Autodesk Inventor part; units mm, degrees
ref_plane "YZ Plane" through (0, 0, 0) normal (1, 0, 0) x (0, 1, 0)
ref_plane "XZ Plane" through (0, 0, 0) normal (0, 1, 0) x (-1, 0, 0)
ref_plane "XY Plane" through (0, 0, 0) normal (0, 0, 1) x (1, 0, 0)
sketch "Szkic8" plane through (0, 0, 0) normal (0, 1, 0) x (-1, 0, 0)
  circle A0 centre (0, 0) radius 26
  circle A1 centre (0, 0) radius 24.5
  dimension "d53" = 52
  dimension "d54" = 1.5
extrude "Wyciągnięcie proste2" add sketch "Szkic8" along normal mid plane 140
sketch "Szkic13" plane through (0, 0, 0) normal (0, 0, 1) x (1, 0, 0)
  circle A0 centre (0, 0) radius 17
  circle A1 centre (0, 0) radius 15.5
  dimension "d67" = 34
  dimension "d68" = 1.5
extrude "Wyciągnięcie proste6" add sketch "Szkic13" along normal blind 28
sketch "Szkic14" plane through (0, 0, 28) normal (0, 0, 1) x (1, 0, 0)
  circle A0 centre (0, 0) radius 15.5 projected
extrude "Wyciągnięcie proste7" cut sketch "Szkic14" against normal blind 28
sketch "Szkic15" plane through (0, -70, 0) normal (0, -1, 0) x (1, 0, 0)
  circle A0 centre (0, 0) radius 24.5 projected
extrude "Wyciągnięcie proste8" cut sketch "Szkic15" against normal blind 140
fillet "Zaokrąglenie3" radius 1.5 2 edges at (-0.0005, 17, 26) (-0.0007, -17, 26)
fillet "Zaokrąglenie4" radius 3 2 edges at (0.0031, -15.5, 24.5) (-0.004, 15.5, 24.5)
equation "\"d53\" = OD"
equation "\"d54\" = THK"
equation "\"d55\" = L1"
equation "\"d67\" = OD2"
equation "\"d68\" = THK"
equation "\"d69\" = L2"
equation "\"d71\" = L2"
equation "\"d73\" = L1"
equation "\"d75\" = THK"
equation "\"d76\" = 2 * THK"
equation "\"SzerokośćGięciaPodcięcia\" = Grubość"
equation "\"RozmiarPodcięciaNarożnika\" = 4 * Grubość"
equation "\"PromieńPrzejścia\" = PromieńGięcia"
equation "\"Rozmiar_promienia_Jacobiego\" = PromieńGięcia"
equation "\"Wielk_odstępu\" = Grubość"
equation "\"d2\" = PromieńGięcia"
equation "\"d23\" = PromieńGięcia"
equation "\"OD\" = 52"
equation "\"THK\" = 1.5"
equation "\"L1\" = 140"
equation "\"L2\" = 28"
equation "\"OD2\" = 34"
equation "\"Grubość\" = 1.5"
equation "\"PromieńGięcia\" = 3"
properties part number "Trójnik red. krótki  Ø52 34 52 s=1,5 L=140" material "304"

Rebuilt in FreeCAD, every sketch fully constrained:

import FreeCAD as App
import Part
import Sketcher

V = App.Vector
Q = App.Units.Quantity


def edges_at(feature, points):
    """Names of the edges that pass closest to the given points."""
    edges = feature.Shape.Edges
    near = lambda p: min(range(len(edges)), key=lambda i: edges[i].distToShape(Part.Vertex(*p))[0])
    return sorted({f"Edge{near(p) + 1}" for p in points})

doc = App.newDocument("Part")
body = doc.addObject("PartDesign::Body", "Body")

sketch1 = body.newObject("Sketcher::SketchObject", "Sketch")
sketch1.AttachmentSupport = (doc.getObject("XZ_Plane"), [""])
sketch1.MapMode = "FlatFace"
sketch1.addGeometry([
    Part.Circle(V(0, 0, 0), V(0, 0, 1), 26),
    Part.Circle(V(0, 0, 0), V(0, 0, 1), 24.5),
], False)
sketch1.addConstraint([
    Sketcher.Constraint("Coincident", 0, 3, -1, 1),
    Sketcher.Constraint("Coincident", 1, 3, -1, 1),
    Sketcher.Constraint("Diameter", 0, Q("52 mm")),
    Sketcher.Constraint("Diameter", 1, Q("49 mm")),
])
pad1 = body.newObject("PartDesign::Pad", "Pad")
pad1.Profile = sketch1
pad1.Length = 140
pad1.Midplane = True

sketch2 = body.newObject("Sketcher::SketchObject", "Sketch001")
sketch2.AttachmentSupport = (doc.getObject("XY_Plane"), [""])
sketch2.MapMode = "FlatFace"
sketch2.addGeometry([
    Part.Circle(V(0, 0, 0), V(0, 0, 1), 17),
    Part.Circle(V(0, 0, 0), V(0, 0, 1), 15.5),
], False)
sketch2.addConstraint([
    Sketcher.Constraint("Coincident", 0, 3, -1, 1),
    Sketcher.Constraint("Coincident", 1, 3, -1, 1),
    Sketcher.Constraint("Diameter", 0, Q("34 mm")),
    Sketcher.Constraint("Diameter", 1, Q("31 mm")),
])
pad2 = body.newObject("PartDesign::Pad", "Pad001")
pad2.Profile = sketch2
pad2.Length = 28

sketch3 = body.newObject("Sketcher::SketchObject", "Sketch002")
sketch3.AttachmentSupport = (doc.getObject("XY_Plane"), [""])
sketch3.MapMode = "FlatFace"
sketch3.AttachmentOffset = App.Placement(V(0, 0, 28), App.Rotation())
sketch3.addGeometry(Part.Circle(V(0, 0, 0), V(0, 0, 1), 15.5), False)
sketch3.addConstraint([
    Sketcher.Constraint("Coincident", 0, 3, -1, 1),
    Sketcher.Constraint("Diameter", 0, Q("31 mm")),
])
pocket1 = body.newObject("PartDesign::Pocket", "Pocket")
pocket1.Profile = sketch3
pocket1.Length = 28

sketch4 = body.newObject("Sketcher::SketchObject", "Sketch003")
sketch4.AttachmentSupport = (doc.getObject("XZ_Plane"), [""])
sketch4.MapMode = "FlatFace"
sketch4.AttachmentOffset = App.Placement(V(0, 0, 70), App.Rotation())
sketch4.addGeometry(Part.Circle(V(0, 0, 0), V(0, 0, 1), 24.5), False)
sketch4.addConstraint([
    Sketcher.Constraint("Coincident", 0, 3, -1, 1),
    Sketcher.Constraint("Diameter", 0, Q("49 mm")),
])
pocket2 = body.newObject("PartDesign::Pocket", "Pocket001")
pocket2.Profile = sketch4
pocket2.Length = 140
doc.recompute()

fillet = body.newObject("PartDesign::Fillet", "Fillet")
fillet.Base = (pocket2, edges_at(pocket2, [(-0.001, 17, 26), (-0.001, -17, 26)]))
fillet.Radius = 1.5
doc.recompute()

fillet2 = body.newObject("PartDesign::Fillet", "Fillet001")
fillet2.Base = (fillet, edges_at(fillet, [(0.003, -15.5, 24.5), (-0.004, 15.5, 24.5)]))
fillet2.Radius = 3

doc.recompute()
